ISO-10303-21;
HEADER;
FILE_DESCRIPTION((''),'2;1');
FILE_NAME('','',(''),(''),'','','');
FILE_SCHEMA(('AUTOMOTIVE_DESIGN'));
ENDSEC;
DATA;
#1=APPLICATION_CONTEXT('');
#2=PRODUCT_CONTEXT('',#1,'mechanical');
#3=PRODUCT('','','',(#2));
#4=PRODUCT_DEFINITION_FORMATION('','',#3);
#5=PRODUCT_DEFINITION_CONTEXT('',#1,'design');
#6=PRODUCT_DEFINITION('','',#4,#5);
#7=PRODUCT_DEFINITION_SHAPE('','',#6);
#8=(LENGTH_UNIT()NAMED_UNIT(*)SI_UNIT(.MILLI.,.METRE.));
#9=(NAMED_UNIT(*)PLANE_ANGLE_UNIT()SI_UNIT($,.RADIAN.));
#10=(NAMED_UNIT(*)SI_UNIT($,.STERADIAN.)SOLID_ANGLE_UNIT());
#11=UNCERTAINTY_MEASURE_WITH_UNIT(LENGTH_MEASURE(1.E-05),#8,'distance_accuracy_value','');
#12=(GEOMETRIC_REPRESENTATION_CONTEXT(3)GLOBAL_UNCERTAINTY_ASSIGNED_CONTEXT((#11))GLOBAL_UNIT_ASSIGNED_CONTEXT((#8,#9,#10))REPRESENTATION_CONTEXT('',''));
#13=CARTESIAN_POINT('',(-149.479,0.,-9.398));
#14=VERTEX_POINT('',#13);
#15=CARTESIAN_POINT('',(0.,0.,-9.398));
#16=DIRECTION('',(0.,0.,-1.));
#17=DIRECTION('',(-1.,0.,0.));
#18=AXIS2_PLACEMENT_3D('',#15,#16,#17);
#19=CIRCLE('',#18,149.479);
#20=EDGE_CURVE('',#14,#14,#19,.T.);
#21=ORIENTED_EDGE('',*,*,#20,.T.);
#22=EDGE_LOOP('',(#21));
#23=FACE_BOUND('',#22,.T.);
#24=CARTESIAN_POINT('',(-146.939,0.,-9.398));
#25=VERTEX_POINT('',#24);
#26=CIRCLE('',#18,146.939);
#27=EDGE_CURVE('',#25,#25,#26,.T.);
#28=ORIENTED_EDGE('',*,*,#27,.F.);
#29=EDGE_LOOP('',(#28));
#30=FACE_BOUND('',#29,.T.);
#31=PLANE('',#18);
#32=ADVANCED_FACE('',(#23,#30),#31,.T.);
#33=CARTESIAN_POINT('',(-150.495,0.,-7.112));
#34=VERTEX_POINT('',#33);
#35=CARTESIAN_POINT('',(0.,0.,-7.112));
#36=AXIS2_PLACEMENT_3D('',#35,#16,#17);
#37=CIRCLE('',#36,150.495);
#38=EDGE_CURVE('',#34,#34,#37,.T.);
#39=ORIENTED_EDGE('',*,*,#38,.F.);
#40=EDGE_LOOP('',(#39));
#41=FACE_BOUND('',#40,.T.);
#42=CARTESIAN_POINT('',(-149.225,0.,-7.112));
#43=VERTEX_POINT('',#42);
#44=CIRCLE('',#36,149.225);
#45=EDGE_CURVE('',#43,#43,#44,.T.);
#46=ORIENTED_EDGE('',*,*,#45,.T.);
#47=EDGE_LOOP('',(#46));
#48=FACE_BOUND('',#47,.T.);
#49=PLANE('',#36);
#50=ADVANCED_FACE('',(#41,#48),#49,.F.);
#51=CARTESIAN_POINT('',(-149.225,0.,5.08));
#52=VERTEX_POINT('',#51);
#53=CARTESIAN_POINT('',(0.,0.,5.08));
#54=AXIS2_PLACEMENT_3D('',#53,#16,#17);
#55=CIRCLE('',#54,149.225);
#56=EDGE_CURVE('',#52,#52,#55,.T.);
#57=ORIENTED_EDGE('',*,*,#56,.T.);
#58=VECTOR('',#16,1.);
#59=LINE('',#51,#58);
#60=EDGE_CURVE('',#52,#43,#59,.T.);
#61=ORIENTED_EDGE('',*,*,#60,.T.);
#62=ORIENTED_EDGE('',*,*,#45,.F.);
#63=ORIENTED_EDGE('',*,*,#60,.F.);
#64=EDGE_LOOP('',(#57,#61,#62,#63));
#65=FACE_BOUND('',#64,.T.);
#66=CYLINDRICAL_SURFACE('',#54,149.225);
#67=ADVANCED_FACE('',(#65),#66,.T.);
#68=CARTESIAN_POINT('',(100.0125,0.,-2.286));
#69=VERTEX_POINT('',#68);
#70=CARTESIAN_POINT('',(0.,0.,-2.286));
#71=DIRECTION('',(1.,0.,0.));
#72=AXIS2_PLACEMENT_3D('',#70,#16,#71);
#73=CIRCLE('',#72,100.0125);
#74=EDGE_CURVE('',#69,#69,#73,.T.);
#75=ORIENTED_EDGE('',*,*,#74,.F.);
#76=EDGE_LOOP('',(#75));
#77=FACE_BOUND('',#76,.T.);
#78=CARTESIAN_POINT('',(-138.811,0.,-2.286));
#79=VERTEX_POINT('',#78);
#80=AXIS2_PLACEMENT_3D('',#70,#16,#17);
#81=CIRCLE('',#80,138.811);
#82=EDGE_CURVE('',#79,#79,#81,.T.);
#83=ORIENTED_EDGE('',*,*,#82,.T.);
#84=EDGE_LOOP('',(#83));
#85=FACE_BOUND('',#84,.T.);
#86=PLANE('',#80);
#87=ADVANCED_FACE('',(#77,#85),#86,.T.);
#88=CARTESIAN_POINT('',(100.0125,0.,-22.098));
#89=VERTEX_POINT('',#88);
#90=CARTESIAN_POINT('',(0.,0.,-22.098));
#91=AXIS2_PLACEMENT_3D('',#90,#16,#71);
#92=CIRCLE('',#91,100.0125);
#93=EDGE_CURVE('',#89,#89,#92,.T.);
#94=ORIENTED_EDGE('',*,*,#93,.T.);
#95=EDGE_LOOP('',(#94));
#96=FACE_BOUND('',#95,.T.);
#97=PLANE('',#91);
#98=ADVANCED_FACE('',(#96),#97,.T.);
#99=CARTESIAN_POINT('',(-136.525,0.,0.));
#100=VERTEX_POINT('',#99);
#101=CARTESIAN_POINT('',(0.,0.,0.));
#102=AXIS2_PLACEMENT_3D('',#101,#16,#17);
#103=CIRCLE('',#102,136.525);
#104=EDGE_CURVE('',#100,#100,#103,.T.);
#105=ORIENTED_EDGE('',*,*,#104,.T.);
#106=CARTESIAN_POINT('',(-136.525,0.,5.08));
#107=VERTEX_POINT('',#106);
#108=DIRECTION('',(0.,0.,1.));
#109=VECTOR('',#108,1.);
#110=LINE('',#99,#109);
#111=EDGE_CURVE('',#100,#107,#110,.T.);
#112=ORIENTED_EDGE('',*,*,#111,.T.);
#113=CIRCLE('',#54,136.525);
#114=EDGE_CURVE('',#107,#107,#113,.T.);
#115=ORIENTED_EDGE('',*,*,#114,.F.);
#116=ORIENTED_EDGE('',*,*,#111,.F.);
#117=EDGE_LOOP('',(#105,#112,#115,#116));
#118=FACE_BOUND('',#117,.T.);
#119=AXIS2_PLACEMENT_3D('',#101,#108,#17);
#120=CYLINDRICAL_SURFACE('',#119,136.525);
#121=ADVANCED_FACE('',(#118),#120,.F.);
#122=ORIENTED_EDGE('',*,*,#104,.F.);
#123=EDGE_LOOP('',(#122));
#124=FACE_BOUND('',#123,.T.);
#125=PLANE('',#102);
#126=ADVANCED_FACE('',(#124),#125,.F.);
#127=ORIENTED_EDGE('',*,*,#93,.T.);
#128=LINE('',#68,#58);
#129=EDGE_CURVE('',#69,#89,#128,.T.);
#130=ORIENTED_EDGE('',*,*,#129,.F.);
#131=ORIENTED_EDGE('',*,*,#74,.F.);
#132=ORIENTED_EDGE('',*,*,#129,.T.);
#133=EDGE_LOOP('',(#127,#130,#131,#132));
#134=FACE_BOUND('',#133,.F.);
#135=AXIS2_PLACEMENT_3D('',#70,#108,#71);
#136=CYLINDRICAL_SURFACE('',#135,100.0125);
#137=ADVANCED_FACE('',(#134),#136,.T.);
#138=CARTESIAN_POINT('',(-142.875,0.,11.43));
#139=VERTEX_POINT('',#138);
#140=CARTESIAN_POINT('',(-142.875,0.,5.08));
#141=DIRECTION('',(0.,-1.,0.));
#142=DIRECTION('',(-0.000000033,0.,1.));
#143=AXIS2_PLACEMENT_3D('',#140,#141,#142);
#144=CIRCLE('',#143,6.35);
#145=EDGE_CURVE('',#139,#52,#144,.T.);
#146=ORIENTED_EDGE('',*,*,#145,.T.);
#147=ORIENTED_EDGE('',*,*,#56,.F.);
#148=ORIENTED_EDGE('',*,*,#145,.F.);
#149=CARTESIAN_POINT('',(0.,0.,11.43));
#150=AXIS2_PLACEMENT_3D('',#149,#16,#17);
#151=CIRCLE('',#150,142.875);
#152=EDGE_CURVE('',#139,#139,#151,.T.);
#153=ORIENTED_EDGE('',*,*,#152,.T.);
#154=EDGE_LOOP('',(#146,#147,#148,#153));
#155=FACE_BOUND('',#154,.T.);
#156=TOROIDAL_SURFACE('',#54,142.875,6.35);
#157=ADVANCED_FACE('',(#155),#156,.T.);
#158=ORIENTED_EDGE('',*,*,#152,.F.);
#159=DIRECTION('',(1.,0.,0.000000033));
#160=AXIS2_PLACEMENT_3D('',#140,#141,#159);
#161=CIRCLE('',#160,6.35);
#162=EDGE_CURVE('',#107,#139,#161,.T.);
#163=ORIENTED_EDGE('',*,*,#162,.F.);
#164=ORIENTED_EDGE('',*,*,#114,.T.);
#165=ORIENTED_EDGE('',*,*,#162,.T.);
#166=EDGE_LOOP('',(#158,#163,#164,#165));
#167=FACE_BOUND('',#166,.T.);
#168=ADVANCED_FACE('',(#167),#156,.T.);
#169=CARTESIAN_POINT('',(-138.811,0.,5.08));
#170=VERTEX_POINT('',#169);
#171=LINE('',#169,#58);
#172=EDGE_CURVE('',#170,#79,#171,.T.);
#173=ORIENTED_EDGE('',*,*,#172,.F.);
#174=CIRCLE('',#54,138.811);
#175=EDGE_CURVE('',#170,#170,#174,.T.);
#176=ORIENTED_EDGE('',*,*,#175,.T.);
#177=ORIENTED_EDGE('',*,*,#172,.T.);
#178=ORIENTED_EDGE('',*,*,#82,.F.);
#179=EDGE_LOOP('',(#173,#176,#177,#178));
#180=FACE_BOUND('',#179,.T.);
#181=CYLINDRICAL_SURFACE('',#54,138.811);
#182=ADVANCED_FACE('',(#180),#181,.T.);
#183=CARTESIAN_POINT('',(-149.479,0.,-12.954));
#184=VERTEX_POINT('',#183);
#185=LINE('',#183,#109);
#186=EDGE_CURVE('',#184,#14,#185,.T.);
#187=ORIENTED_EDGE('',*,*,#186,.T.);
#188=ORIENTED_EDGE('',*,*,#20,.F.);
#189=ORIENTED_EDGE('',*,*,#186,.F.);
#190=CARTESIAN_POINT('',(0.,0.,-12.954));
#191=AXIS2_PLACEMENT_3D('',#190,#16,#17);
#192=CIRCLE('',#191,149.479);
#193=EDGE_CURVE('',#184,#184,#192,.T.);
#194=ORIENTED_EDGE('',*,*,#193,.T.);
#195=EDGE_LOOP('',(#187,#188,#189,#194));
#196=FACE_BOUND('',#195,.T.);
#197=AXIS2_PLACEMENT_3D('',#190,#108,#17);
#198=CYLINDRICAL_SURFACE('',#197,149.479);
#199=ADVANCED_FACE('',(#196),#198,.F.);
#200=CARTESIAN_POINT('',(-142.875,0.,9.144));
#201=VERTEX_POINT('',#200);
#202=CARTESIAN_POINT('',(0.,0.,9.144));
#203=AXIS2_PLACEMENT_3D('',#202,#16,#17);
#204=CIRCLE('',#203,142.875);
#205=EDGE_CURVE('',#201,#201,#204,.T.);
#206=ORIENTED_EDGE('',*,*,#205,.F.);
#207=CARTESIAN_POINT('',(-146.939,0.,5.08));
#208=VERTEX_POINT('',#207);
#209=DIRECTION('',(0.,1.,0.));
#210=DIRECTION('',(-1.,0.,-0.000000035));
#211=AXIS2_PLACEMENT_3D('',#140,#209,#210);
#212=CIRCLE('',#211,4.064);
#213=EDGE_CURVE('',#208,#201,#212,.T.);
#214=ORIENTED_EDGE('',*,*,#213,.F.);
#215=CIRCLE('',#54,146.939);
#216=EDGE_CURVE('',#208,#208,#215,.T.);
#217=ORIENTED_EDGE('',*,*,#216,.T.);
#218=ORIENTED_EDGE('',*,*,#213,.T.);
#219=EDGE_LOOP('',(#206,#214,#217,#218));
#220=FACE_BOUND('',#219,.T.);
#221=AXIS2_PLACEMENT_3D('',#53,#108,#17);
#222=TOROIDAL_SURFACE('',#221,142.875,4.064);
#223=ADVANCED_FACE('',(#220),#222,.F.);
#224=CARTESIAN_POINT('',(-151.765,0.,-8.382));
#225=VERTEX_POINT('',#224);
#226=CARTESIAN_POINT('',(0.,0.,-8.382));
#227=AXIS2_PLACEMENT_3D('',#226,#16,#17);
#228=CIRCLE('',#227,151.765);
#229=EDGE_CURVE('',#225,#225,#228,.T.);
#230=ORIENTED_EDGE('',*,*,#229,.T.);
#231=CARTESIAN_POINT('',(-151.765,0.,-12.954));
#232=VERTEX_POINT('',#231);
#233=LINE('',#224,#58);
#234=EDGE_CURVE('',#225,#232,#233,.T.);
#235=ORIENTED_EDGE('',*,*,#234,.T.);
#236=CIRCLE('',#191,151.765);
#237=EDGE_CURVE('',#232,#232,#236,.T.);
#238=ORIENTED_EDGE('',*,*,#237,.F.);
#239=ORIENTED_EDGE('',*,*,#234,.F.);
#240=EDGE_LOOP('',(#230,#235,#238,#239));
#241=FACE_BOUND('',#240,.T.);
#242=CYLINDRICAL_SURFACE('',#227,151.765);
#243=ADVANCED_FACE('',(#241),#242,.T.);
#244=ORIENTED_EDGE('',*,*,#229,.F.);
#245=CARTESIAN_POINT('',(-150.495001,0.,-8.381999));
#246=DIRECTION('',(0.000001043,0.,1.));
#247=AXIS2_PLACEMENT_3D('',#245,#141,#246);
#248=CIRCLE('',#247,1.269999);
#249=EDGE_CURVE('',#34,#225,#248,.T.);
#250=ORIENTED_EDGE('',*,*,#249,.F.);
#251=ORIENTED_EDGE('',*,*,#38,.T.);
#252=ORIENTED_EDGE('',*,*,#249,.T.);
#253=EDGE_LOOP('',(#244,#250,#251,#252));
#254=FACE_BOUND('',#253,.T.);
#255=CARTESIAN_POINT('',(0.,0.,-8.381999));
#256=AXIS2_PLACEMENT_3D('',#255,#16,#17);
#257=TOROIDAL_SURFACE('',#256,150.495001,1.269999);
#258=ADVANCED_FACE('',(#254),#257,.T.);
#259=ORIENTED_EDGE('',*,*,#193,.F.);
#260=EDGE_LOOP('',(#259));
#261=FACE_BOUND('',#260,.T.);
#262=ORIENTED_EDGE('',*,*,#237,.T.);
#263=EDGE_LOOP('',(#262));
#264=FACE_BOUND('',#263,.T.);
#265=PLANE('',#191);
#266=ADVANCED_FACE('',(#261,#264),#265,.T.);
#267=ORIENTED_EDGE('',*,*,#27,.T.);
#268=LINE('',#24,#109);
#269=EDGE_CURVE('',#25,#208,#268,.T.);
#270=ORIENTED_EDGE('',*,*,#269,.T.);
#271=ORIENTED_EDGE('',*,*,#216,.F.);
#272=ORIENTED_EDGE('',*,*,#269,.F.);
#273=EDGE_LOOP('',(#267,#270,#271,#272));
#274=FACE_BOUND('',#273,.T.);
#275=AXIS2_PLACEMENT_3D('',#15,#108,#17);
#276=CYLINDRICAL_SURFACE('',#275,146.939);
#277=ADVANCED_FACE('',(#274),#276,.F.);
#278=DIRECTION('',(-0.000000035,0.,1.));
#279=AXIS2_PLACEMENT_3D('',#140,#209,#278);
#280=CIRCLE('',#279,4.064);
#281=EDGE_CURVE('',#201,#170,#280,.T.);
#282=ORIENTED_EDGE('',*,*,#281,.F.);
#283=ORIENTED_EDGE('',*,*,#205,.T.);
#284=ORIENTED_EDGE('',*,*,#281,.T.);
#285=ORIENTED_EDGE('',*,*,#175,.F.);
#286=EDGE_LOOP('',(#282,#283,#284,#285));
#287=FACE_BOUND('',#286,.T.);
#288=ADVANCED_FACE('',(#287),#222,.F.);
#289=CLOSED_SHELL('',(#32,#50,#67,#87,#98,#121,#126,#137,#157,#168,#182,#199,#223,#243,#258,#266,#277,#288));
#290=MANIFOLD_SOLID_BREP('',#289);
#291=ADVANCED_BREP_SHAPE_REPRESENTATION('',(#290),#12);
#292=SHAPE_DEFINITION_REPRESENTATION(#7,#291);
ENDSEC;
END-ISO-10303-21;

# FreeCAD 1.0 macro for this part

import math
import FreeCAD as App
import Part
import Sketcher
Q = App.Units.Quantity

doc = App.newDocument("Part")
body = doc.addObject("PartDesign::Body", "Body")

# Sketch on XZ plane
sketch1 = body.newObject("Sketcher::SketchObject", "Sketch")
sketch1.AttachmentSupport = (doc.getObject("XZ_Plane"), [""])
sketch1.MapMode = "FlatFace"
sketch1.addGeometry([
    Part.LineSegment(App.Vector(0, 0, 0), App.Vector(-136.525, 0, 0)),  # 0
    Part.LineSegment(App.Vector(-136.525, 0, 0), App.Vector(-136.525, 5.08, 0)),  # 1
    Part.ArcOfCircle(Part.Circle(App.Vector(-142.875, 5.08, 0), App.Vector(0, 0, 1), 6.35), math.radians(0.000002), math.radians(89.999998)),  # 2
    Part.ArcOfCircle(Part.Circle(App.Vector(-142.875, 5.08, 0), App.Vector(0, 0, 1), 6.35), math.radians(90.000002), math.radians(179.999998)),  # 3
    Part.LineSegment(App.Vector(-149.225, 5.08, 0), App.Vector(-149.225, -7.112, 0)),  # 4
    Part.LineSegment(App.Vector(-149.225, -7.112, 0), App.Vector(-150.495, -7.112, 0)),  # 5
    Part.ArcOfCircle(Part.Circle(App.Vector(-150.495001, -8.381999, 0), App.Vector(0, 0, 1), 1.269999), math.radians(89.99994), math.radians(180.00006)),  # 6
    Part.LineSegment(App.Vector(-151.765, -8.382, 0), App.Vector(-151.765, -12.954, 0)),  # 7
    Part.LineSegment(App.Vector(-151.765, -12.954, 0), App.Vector(-149.479, -12.954, 0)),  # 8
    Part.LineSegment(App.Vector(-149.479, -12.954, 0), App.Vector(-149.479, -9.398, 0)),  # 9
    Part.LineSegment(App.Vector(-149.479, -9.398, 0), App.Vector(-146.939, -9.398, 0)),  # 10
    Part.LineSegment(App.Vector(-146.939, -9.398, 0), App.Vector(-146.939, 5.08, 0)),  # 11
    Part.ArcOfCircle(Part.Circle(App.Vector(-142.875, 5.08, 0), App.Vector(0, 0, 1), 4.064), math.radians(89.999998), math.radians(180.000002)),  # 12
    Part.ArcOfCircle(Part.Circle(App.Vector(-142.875, 5.08, 0), App.Vector(0, 0, 1), 4.064), math.radians(-0.000002), math.radians(90.000002)),  # 13
    Part.LineSegment(App.Vector(-138.811, 5.08, 0), App.Vector(-138.811, -2.286, 0)),  # 14
    Part.LineSegment(App.Vector(-138.811, -2.286, 0), App.Vector(0, -2.286, 0)),  # 15
    Part.LineSegment(App.Vector(0, -2.286, 0), App.Vector(0, 0, 0)),  # 16
], False)
sketch1.addConstraint([
    Sketcher.Constraint("Coincident", 0, 2, 1, 1),
    Sketcher.Constraint("Tangent", 1, 2, 2, 1),
    Sketcher.Constraint("Tangent", 2, 2, 3, 1),
    Sketcher.Constraint("Tangent", 3, 2, 4, 1),
    Sketcher.Constraint("Coincident", 4, 2, 5, 1),
    Sketcher.Constraint("Tangent", 5, 2, 6, 1),
    Sketcher.Constraint("Tangent", 6, 2, 7, 1),
    Sketcher.Constraint("Coincident", 7, 2, 8, 1),
    Sketcher.Constraint("Coincident", 8, 2, 9, 1),
    Sketcher.Constraint("Coincident", 9, 2, 10, 1),
    Sketcher.Constraint("Coincident", 10, 2, 11, 1),
    Sketcher.Constraint("Tangent", 11, 2, 12, 2),
    Sketcher.Constraint("Tangent", 12, 1, 13, 2),
    Sketcher.Constraint("Tangent", 13, 1, 14, 1),
    Sketcher.Constraint("Coincident", 14, 2, 15, 1),
    Sketcher.Constraint("Coincident", 15, 2, 16, 1),
    Sketcher.Constraint("Coincident", 16, 2, 0, 1),
    Sketcher.Constraint("Horizontal", 0),
    Sketcher.Constraint("Vertical", 1),
    Sketcher.Constraint("Vertical", 4),
    Sketcher.Constraint("Horizontal", 5),
    Sketcher.Constraint("Vertical", 7),
    Sketcher.Constraint("Horizontal", 8),
    Sketcher.Constraint("Vertical", 9),
    Sketcher.Constraint("Horizontal", 10),
    Sketcher.Constraint("Vertical", 11),
    Sketcher.Constraint("Vertical", 14),
    Sketcher.Constraint("Horizontal", 15),
    Sketcher.Constraint("Vertical", 16),
    Sketcher.Constraint("Coincident", 16, 2, -1, 1),
    Sketcher.Constraint("Coincident", 12, 3, 2, 3),
    Sketcher.Constraint("Equal", 2, 3),
    Sketcher.Constraint("Equal", 12, 13),
    Sketcher.Constraint("Vertical", 13, 3, 2, 2),
    Sketcher.Constraint("Vertical", 2, 2, 12, 1),
    Sketcher.Constraint("Equal", 8, 16),
    Sketcher.Constraint("Radius", 2, Q("0.25 in")),
    Sketcher.Constraint("Radius", 6, Q("0.0499999 in")),
    Sketcher.Constraint("Radius", 12, Q("0.16 in")),
    Sketcher.Constraint("DistanceX", 10, 1, 10, 2, Q("0.1 in")),
    Sketcher.Constraint("DistanceY", 1, 1, 1, 2, Q("0.2 in")),
    Sketcher.Constraint("DistanceX", 5, 2, 5, 1, Q("0.05 in")),
    Sketcher.Constraint("DistanceY", 4, 2, 4, 1, Q("0.48 in")),
    Sketcher.Constraint("DistanceY", 7, 2, 7, 1, Q("0.18 in")),
    Sketcher.Constraint("DistanceY", 9, 1, 9, 2, Q("0.14 in")),
    Sketcher.Constraint("DistanceX", 0, 2, 0, 1, Q("5.375 in")),
])
revolution = body.newObject("PartDesign::Revolution", "Revolution")
revolution.Profile = sketch1
revolution.ReferenceAxis = (sketch1, ["V_Axis"])
revolution.Angle = 360

# Sketch on XY plane
sketch2 = body.newObject("Sketcher::SketchObject", "Sketch001")
sketch2.AttachmentSupport = (doc.getObject("XY_Plane"), [""])
sketch2.MapMode = "FlatFace"
sketch2.AttachmentOffset = App.Placement(App.Vector(0, 0, -0.09 * 25.4), App.Rotation())
sketch2.addGeometry(Part.Circle(App.Vector(0, 0, 0), App.Vector(0, 0, 1), 100.0125), False)
sketch2.addConstraint([
    Sketcher.Constraint("Coincident", 0, 3, -1, 1),
    Sketcher.Constraint("Diameter", 0, Q("7.875 in")),
])
pad1 = body.newObject("PartDesign::Pad", "Pad")
pad1.Profile = sketch2
pad1.Length = Q("0.78 in")
pad1.Reversed = True

doc.recompute()
